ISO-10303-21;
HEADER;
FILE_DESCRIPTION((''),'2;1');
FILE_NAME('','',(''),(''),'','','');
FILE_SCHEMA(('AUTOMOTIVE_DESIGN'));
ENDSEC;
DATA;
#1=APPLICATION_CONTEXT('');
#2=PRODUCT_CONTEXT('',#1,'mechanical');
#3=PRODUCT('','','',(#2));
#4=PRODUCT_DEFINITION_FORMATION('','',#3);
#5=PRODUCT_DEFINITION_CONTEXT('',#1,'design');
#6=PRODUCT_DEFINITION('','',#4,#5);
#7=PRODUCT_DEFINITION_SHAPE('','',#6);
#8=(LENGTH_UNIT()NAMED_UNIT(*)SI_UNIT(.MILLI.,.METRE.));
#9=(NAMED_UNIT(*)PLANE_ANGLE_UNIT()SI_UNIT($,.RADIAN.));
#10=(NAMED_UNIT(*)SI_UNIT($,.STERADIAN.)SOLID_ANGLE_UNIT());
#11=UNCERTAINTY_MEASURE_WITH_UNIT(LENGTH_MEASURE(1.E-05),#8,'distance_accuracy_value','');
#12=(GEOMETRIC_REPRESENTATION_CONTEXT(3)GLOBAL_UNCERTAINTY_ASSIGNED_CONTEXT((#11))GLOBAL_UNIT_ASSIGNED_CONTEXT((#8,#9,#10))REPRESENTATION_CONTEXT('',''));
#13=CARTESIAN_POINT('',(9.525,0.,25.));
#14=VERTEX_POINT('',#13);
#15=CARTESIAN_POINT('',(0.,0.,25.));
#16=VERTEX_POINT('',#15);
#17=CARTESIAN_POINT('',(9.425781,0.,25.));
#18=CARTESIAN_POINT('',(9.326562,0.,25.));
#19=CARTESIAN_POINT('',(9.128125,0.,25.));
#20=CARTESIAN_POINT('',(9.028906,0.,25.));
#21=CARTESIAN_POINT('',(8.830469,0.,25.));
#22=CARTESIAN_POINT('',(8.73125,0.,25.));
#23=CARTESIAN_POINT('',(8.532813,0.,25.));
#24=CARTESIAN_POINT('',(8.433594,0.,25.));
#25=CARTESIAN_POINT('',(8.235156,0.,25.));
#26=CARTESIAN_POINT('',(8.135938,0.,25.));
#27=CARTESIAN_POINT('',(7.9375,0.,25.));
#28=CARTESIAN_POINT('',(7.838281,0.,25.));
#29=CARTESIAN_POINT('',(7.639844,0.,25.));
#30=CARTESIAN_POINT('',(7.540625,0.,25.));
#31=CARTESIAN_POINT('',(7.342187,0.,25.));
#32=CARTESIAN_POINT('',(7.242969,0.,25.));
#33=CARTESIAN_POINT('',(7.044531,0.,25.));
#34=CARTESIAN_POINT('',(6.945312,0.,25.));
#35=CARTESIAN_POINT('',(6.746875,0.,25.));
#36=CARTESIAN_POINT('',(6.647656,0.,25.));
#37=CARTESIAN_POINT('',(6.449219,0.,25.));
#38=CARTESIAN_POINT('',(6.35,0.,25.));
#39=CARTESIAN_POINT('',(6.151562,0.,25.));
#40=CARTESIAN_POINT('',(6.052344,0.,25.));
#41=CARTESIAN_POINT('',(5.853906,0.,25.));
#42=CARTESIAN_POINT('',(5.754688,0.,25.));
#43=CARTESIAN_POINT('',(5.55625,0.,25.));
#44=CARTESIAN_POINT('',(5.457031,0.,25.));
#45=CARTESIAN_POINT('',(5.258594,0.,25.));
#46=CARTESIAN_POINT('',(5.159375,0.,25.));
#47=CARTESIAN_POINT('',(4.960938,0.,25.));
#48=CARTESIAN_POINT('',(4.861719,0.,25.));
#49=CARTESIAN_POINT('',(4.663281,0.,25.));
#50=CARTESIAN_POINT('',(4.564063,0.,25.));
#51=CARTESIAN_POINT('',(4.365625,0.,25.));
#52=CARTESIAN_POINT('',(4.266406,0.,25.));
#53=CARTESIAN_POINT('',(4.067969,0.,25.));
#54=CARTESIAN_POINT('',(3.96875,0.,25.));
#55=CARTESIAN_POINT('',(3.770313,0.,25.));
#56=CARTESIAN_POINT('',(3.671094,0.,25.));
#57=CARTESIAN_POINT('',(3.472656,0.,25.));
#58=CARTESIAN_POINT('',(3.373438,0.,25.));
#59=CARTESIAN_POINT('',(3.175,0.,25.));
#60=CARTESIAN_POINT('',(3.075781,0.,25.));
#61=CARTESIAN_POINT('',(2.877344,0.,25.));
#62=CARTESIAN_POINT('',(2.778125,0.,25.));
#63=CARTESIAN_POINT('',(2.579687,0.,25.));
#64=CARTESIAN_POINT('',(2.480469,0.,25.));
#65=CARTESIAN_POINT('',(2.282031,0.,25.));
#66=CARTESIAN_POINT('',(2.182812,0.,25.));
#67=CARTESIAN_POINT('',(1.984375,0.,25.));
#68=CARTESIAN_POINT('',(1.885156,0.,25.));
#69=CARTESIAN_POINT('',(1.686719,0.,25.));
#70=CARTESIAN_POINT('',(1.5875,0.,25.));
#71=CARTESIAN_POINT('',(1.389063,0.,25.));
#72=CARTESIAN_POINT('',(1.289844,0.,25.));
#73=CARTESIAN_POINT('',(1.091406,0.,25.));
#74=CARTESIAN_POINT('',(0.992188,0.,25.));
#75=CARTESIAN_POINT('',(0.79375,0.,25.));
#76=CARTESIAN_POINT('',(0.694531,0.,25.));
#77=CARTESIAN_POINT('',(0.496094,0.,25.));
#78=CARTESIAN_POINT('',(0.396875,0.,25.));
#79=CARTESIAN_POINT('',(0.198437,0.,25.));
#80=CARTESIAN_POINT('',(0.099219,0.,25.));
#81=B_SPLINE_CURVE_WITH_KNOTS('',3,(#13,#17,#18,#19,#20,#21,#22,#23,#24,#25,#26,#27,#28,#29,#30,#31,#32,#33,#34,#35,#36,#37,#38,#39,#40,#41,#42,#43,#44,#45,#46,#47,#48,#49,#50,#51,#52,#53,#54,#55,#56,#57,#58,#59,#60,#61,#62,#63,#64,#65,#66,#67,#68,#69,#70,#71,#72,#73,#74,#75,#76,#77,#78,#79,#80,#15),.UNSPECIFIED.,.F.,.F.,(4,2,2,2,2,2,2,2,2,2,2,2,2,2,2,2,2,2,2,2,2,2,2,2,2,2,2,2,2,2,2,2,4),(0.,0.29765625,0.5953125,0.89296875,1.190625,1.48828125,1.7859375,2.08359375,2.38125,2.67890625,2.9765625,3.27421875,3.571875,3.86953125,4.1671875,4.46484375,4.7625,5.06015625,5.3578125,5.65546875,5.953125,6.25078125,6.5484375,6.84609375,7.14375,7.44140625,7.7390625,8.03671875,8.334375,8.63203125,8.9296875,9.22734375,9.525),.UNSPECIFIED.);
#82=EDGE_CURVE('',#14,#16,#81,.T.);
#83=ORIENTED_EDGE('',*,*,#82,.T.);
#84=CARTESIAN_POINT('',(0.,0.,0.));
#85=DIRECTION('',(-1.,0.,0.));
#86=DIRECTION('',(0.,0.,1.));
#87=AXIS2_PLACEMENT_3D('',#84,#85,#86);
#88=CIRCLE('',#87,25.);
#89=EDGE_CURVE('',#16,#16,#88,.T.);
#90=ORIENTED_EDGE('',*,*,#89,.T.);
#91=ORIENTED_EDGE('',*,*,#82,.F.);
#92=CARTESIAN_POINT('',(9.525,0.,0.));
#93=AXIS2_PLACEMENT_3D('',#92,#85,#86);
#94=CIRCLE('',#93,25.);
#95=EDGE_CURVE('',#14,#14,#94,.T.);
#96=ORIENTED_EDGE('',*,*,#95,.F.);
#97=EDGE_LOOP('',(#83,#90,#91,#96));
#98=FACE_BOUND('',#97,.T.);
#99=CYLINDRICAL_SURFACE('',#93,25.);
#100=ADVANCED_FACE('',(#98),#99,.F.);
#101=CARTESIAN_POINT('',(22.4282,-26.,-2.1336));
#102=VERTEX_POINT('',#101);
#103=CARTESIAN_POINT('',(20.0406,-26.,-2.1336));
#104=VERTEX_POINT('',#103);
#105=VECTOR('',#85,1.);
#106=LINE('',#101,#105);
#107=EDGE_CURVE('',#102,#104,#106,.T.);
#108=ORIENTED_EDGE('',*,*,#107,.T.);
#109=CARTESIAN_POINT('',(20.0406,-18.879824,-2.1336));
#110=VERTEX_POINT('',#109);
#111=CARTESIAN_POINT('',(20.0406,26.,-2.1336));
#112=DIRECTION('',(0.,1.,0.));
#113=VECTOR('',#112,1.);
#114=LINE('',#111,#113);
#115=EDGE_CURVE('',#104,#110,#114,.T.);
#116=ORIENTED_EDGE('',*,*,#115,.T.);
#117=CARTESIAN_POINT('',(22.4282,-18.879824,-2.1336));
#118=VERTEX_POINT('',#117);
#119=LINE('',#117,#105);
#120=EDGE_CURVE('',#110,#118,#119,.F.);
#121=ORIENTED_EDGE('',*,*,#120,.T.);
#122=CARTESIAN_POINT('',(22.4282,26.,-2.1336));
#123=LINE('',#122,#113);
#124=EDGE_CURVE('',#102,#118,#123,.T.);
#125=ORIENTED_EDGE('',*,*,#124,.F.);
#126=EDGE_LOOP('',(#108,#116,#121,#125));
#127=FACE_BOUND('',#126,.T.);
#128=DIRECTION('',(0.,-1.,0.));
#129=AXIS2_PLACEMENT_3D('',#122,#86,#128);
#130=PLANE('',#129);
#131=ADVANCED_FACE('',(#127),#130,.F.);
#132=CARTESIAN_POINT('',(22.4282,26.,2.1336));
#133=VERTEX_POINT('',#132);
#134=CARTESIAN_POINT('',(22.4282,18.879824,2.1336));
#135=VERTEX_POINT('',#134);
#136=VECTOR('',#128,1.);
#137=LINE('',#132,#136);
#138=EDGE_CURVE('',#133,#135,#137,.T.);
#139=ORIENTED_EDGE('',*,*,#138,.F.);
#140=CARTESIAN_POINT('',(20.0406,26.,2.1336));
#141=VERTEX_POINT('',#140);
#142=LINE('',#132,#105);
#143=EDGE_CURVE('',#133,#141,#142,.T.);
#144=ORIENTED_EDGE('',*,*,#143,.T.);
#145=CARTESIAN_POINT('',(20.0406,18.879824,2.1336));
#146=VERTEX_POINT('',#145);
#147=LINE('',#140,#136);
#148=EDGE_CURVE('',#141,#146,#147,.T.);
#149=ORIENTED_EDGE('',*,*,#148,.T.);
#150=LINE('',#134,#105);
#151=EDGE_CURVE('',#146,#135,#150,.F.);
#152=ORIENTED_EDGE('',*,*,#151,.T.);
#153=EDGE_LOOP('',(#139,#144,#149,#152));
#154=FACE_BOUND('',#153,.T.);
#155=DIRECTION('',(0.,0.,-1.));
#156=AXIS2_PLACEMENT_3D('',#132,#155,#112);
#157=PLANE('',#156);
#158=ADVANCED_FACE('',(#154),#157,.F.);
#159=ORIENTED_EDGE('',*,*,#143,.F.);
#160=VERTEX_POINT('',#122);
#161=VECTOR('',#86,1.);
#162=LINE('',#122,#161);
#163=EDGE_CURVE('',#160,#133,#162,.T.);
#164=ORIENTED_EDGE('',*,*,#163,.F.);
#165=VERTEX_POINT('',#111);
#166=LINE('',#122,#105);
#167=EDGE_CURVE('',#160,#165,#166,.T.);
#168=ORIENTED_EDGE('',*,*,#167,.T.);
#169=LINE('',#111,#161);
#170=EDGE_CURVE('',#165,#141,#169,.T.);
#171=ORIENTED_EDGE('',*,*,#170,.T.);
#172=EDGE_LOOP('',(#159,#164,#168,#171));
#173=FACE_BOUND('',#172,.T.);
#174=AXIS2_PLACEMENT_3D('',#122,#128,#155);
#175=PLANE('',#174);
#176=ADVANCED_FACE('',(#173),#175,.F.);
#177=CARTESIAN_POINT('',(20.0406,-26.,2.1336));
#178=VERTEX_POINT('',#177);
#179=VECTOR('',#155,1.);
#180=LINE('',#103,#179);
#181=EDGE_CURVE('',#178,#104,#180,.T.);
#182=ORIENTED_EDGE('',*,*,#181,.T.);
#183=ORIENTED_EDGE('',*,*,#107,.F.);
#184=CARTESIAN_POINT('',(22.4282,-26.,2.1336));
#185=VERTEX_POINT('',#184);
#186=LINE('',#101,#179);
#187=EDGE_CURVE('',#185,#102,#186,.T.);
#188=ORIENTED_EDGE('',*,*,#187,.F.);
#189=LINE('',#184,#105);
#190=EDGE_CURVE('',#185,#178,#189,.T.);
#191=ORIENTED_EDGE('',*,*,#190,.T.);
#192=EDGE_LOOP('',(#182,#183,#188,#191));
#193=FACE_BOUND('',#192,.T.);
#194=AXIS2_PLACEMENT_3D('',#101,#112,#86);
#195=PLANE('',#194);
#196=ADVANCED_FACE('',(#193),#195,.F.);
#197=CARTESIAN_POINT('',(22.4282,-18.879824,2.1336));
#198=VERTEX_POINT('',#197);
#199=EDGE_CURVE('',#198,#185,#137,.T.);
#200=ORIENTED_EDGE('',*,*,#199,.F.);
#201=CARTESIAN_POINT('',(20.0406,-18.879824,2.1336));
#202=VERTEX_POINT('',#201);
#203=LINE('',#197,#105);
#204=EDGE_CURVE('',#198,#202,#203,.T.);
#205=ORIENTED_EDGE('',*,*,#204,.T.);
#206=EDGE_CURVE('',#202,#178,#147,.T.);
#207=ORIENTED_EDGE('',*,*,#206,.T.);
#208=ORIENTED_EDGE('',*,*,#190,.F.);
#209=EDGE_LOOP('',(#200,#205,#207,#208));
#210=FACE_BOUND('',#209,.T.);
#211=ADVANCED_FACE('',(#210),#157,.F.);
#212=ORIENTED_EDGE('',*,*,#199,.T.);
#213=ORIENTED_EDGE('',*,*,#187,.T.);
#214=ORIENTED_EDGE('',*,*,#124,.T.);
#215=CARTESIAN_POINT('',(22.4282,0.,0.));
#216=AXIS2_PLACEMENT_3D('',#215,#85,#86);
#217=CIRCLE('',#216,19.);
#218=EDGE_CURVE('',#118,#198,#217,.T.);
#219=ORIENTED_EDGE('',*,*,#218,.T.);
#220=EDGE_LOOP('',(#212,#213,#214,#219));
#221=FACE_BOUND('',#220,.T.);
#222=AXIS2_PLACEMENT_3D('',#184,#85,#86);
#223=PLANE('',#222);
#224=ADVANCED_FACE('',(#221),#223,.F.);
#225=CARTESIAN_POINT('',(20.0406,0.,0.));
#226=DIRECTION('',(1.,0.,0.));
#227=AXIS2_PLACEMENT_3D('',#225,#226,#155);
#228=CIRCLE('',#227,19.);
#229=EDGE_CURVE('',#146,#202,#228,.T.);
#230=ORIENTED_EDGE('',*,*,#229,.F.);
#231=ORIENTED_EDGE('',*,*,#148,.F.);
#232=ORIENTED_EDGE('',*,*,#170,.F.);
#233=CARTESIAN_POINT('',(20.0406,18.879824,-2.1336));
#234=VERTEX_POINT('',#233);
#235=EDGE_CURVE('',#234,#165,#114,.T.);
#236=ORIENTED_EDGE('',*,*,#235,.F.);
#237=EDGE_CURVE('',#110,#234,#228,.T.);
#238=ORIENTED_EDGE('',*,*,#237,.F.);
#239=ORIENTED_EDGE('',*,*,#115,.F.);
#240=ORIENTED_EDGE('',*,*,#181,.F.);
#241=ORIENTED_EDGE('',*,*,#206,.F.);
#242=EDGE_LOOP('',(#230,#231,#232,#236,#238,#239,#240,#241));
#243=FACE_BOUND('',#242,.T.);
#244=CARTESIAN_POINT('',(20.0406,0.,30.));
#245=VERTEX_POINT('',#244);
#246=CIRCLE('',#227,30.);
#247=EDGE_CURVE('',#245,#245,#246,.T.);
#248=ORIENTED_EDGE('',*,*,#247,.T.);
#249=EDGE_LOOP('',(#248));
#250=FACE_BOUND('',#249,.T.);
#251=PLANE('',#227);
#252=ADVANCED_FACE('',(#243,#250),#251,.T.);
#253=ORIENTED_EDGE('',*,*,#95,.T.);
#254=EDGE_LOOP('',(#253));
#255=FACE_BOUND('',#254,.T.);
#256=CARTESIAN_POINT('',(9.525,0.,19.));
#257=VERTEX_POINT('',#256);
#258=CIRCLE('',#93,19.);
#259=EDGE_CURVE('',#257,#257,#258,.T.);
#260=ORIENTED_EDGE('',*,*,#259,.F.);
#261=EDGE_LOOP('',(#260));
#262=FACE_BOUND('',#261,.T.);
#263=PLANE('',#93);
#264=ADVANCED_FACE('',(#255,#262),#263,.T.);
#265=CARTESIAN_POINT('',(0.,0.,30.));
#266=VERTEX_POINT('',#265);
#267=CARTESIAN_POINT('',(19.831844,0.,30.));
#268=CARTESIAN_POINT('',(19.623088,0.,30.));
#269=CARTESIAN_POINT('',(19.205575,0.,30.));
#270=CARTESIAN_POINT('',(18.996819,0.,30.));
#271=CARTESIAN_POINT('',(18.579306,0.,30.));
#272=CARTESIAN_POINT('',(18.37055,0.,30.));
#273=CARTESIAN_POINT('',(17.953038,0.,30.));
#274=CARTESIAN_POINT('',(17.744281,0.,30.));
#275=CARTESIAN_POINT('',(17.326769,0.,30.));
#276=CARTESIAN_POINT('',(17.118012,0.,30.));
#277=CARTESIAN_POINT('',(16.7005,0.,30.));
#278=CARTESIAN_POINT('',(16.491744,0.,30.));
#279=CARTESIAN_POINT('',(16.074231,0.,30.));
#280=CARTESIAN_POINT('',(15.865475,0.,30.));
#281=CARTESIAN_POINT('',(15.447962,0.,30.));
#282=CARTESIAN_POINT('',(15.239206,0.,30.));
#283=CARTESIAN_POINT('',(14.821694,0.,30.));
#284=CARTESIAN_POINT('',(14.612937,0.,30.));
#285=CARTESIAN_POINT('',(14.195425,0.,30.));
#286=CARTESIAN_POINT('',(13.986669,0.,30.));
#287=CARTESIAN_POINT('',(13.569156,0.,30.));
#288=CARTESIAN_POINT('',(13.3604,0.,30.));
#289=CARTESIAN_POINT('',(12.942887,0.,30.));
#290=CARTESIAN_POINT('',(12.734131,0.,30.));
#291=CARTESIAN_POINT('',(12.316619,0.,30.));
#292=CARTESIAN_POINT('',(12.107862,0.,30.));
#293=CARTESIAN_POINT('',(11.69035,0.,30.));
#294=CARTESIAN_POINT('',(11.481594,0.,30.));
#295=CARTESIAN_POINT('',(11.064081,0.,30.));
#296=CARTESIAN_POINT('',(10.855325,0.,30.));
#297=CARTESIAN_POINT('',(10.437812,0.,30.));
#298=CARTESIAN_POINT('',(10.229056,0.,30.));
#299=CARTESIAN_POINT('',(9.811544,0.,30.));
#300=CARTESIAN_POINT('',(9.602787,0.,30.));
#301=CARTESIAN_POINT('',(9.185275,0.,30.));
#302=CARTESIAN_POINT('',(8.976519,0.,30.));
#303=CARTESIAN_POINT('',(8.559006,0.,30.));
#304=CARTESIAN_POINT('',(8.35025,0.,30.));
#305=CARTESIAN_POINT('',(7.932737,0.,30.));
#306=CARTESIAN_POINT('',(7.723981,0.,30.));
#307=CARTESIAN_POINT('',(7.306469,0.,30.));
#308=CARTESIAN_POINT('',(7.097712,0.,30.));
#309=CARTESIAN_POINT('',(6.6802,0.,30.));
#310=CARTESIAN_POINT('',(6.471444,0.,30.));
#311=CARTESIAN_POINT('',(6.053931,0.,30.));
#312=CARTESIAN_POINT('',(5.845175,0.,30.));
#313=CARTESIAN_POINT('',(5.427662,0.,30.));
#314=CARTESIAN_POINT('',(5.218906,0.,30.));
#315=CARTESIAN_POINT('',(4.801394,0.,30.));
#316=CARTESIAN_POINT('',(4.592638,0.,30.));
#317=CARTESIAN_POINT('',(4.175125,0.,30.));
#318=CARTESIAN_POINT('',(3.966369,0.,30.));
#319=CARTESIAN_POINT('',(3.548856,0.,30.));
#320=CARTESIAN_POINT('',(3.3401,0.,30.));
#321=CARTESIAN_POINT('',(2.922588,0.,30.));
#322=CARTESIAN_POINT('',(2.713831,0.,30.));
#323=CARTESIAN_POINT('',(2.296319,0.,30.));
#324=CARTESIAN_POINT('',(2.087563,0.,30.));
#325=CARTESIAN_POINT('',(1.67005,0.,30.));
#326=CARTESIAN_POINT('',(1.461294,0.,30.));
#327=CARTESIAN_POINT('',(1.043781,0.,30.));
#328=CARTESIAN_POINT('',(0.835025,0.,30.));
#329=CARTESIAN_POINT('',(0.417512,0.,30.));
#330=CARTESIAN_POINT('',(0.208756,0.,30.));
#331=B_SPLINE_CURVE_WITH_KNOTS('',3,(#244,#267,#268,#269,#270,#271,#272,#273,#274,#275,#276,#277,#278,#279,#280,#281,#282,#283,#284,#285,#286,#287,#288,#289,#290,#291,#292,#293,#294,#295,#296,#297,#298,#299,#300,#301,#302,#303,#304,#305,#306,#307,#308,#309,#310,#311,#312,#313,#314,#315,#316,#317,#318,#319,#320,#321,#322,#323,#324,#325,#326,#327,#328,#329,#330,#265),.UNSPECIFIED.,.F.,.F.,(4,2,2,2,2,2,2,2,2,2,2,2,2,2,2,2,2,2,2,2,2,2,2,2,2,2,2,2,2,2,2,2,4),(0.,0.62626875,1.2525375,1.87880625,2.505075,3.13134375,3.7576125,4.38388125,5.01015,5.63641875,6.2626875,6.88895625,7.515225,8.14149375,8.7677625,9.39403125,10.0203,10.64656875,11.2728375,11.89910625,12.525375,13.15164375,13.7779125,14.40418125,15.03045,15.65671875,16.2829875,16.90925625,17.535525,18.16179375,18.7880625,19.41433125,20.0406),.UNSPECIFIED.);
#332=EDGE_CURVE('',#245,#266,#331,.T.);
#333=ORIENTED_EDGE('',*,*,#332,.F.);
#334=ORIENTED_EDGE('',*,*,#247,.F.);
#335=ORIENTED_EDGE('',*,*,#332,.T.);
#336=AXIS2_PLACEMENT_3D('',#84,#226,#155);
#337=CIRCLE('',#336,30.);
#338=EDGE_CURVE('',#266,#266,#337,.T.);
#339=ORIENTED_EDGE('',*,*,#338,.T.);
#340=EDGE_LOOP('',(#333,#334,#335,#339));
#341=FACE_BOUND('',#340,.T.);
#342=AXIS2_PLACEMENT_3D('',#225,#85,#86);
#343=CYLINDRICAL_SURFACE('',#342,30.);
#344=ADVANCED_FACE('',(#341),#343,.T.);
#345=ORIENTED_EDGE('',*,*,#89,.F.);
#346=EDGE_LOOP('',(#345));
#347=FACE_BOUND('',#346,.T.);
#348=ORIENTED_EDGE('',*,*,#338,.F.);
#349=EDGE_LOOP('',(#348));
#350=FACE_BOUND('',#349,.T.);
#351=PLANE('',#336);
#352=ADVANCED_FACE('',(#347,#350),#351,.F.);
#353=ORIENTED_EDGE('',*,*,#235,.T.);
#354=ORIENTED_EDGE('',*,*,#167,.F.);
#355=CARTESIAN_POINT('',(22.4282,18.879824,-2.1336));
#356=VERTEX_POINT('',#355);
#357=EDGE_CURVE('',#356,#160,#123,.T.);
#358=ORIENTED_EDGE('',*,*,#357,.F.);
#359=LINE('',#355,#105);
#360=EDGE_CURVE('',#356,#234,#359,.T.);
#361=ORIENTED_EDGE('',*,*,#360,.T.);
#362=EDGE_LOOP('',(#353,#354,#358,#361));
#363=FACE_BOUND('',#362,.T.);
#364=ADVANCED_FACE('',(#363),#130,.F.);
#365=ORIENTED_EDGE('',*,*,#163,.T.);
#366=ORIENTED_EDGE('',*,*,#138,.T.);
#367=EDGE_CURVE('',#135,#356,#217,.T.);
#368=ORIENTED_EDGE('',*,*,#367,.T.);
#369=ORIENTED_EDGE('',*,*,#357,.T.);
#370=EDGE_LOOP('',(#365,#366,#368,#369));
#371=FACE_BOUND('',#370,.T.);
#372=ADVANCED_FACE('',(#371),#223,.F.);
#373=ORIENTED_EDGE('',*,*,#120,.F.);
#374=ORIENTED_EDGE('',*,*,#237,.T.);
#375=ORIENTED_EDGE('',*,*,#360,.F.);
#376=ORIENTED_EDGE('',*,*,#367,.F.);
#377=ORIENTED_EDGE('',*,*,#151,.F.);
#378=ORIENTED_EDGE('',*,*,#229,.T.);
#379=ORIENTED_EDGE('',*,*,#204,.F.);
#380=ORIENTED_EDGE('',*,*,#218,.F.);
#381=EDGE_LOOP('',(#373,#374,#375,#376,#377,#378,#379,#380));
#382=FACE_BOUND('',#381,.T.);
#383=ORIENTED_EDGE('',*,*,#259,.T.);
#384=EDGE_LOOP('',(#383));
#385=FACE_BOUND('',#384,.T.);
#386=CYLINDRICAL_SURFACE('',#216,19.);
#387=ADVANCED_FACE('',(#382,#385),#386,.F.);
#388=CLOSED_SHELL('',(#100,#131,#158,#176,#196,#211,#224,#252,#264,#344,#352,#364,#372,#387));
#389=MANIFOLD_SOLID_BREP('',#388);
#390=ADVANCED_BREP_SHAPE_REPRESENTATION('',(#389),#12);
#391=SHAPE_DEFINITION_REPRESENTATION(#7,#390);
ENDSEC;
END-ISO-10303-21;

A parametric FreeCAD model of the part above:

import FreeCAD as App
import Part
import Sketcher


def add_polygon(sketch, points):
    """Adds a closed chain of lines whose ends are joined by coincident constraints."""
    first, n = sketch.GeometryCount, len(points)
    for a, b in zip(points, points[1:] + points[:1]):
        sketch.addGeometry(Part.LineSegment(App.Vector(*a, 0), App.Vector(*b, 0)), False)
    for i in range(n):
        sketch.addConstraint(Sketcher.Constraint("Coincident", first + i, 2, first + (i + 1) % n, 1))

doc = App.newDocument("Part")
body = doc.addObject("PartDesign::Body", "Body")

sketch1 = body.newObject("Sketcher::SketchObject", "Sketch")
sketch1.AttachmentSupport = (doc.getObject("YZ_Plane"), [""])
sketch1.MapMode = "FlatFace"
sketch1.addGeometry(Part.Circle(App.Vector(0, 0, 0), App.Vector(0, 0, 1), 30), False)
sketch1.addConstraint([
    Sketcher.Constraint("Coincident", 0, 3, -1, 1),
    Sketcher.Constraint("Diameter", 0, 60.0),
])
pad1 = body.newObject("PartDesign::Pad", "Pad")
pad1.Profile = sketch1
pad1.Length = 20.0406

sketch2 = body.newObject("Sketcher::SketchObject", "Sketch001")
sketch2.AttachmentSupport = (doc.getObject("YZ_Plane"), [""])
sketch2.MapMode = "FlatFace"
sketch2.addGeometry(Part.Circle(App.Vector(0, 0, 0), App.Vector(0, 0, 1), 25), False)
sketch2.addConstraint([
    Sketcher.Constraint("Coincident", 0, 3, -1, 1),
    Sketcher.Constraint("Diameter", 0, 50.0),
])
pocket1 = body.newObject("PartDesign::Pocket", "Pocket")
pocket1.Profile = sketch2
pocket1.Length = 9.525
pocket1.Reversed = True

sketch3 = body.newObject("Sketcher::SketchObject", "Sketch002")
sketch3.AttachmentSupport = (doc.getObject("YZ_Plane"), [""])
sketch3.MapMode = "FlatFace"
sketch3.AttachmentOffset = App.Placement(App.Vector(0, 0, 20.0406), App.Rotation())
add_polygon(sketch3, [(26, 2.1), (-26, 2.1), (-26, -2.1), (26, -2.1)])
sketch3.addConstraint([
    Sketcher.Constraint("Horizontal", 0),
    Sketcher.Constraint("Vertical", 1),
    Sketcher.Constraint("Horizontal", 2),
    Sketcher.Constraint("Vertical", 3),
    Sketcher.Constraint("Symmetric", 0, 2, 2, 2, -1, 1),
    Sketcher.Constraint("DistanceX", 0, 2, 0, 1, 52.0),
    Sketcher.Constraint("DistanceY", 1, 2, 1, 1, 4.2672),
])
pad2 = body.newObject("PartDesign::Pad", "Pad001")
pad2.Profile = sketch3
pad2.Length = 2.3876

sketch4 = body.newObject("Sketcher::SketchObject", "Sketch003")
sketch4.AttachmentSupport = (doc.getObject("YZ_Plane"), [""])
sketch4.MapMode = "FlatFace"
sketch4.addGeometry(Part.Circle(App.Vector(0, 0, 0), App.Vector(0, 0, 1), 19), False)
sketch4.addConstraint([
    Sketcher.Constraint("Coincident", 0, 3, -1, 1),
    Sketcher.Constraint("Diameter", 0, 38.0),
])
pocket2 = body.newObject("PartDesign::Pocket", "Pocket001")
pocket2.Profile = sketch4
pocket2.Type = "ThroughAll"
pocket2.Reversed = True

doc.recompute()
